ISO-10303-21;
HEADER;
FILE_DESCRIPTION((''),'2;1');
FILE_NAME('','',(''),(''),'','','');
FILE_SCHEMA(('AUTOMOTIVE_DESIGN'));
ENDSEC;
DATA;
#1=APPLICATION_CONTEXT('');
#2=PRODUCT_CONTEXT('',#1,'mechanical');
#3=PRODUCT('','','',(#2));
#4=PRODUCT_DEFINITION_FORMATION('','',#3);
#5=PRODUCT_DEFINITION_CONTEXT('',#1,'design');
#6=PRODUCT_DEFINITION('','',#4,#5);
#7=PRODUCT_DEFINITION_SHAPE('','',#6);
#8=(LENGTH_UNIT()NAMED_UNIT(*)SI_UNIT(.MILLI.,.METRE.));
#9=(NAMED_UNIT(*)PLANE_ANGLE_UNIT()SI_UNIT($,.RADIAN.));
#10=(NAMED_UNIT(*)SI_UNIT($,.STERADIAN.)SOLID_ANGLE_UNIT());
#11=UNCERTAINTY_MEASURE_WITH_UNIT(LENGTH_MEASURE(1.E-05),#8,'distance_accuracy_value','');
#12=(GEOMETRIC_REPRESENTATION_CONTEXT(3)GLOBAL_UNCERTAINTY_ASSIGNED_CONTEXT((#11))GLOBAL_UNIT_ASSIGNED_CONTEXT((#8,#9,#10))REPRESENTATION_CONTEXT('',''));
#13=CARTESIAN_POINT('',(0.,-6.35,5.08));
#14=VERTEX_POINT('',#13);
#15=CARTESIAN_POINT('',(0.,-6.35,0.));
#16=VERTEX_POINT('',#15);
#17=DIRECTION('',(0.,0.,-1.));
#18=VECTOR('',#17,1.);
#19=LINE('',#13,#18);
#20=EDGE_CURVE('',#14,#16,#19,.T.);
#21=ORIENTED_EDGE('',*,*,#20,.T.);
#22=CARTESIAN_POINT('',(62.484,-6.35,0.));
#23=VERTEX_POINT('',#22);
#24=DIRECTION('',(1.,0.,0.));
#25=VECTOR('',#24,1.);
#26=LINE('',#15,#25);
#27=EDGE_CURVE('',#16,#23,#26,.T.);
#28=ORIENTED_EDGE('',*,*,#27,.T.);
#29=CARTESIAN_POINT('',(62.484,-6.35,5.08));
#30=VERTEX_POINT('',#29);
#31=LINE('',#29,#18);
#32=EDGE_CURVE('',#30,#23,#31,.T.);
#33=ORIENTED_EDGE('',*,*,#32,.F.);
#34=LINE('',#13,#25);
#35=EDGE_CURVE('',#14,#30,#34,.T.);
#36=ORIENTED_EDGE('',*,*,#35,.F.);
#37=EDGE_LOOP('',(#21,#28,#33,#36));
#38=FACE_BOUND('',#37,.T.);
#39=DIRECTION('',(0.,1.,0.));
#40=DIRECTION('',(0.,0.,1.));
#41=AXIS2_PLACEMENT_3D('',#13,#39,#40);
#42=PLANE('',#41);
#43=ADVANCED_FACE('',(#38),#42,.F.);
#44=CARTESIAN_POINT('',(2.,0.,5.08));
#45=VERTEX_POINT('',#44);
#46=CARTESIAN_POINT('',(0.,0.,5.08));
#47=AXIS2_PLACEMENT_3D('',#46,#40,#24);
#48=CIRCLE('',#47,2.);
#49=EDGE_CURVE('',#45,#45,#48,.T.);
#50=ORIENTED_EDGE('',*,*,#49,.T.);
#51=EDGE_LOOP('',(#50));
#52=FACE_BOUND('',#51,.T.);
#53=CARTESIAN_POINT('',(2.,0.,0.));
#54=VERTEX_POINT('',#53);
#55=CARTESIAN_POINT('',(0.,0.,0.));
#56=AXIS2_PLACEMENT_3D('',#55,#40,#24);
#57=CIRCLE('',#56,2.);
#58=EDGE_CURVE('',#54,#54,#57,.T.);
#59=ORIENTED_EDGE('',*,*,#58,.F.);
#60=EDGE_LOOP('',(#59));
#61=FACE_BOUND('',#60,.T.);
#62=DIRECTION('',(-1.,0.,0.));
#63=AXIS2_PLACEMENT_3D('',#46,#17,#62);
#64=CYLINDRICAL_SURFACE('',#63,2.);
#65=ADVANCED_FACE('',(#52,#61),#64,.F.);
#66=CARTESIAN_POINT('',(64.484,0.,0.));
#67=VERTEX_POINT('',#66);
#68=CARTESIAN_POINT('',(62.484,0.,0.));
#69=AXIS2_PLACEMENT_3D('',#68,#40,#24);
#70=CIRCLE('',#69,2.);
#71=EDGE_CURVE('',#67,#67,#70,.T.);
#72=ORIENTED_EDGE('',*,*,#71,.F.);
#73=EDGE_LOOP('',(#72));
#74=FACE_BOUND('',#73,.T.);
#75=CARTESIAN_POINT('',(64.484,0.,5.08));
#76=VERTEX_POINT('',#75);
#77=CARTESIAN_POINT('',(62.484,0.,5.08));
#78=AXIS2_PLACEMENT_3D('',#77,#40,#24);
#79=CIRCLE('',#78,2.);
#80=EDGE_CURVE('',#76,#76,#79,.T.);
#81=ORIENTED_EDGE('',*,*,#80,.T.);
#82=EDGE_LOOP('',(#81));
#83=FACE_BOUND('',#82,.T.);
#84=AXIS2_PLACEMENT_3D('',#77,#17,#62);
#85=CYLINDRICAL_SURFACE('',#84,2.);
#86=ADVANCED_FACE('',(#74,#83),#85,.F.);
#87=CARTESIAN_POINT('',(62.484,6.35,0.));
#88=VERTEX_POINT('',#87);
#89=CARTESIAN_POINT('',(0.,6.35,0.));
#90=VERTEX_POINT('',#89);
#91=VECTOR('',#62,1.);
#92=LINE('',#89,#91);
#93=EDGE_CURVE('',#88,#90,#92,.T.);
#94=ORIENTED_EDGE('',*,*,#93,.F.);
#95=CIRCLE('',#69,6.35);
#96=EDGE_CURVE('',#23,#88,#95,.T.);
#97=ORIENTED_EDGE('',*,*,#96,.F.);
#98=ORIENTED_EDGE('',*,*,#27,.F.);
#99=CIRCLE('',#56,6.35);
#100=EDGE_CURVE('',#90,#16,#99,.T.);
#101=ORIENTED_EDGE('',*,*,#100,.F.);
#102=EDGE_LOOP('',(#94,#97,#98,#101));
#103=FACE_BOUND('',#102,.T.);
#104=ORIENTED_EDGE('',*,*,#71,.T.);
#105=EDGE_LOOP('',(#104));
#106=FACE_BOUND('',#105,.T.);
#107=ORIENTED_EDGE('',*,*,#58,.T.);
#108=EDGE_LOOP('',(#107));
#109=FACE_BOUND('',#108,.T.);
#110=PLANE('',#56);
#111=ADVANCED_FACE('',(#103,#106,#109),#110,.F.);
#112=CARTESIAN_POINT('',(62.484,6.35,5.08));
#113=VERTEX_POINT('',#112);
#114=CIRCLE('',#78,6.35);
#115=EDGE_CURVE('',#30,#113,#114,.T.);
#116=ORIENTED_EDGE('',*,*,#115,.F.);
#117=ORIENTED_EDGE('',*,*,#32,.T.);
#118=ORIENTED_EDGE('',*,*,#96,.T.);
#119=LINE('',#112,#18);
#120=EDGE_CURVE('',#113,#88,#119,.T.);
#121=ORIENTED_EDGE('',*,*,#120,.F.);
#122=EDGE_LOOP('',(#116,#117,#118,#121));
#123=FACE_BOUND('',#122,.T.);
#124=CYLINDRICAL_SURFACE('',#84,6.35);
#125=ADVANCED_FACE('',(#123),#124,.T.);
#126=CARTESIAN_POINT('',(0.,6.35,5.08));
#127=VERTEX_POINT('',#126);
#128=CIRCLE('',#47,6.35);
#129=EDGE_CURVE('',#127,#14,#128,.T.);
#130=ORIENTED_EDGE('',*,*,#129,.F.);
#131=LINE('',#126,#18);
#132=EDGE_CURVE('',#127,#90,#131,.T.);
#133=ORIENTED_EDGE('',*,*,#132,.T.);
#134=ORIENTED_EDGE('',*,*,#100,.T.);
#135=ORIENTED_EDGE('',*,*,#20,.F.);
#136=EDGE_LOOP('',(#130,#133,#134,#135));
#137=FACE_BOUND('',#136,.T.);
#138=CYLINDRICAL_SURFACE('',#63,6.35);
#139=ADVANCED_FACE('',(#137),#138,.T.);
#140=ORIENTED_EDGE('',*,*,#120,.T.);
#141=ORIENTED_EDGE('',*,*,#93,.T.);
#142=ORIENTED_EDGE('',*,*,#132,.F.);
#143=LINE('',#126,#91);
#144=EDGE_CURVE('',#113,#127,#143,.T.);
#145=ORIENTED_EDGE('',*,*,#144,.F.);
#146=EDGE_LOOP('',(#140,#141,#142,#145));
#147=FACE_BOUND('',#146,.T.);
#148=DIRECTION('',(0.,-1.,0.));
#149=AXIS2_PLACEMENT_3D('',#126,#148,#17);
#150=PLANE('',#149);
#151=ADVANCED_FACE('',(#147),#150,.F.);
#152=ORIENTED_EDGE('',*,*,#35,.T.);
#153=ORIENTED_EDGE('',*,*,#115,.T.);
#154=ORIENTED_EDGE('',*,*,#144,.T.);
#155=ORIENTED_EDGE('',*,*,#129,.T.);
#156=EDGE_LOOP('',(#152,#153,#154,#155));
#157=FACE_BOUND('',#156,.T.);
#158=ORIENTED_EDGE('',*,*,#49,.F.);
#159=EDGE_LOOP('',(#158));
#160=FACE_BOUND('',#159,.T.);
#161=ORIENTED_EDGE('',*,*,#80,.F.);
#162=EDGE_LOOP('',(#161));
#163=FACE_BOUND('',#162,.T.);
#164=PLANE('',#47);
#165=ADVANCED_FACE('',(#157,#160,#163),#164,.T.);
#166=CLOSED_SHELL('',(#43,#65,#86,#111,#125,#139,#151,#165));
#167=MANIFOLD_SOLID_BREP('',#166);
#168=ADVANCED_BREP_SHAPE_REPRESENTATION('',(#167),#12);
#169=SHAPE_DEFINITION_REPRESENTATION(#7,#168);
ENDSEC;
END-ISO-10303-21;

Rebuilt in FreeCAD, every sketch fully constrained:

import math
import FreeCAD as App
import Part
import Sketcher
Q = App.Units.Quantity

doc = App.newDocument("Part")
body = doc.addObject("PartDesign::Body", "Body")

# Sketch on XY plane
sketch1 = body.newObject("Sketcher::SketchObject", "Sketch")
sketch1.AttachmentSupport = (doc.getObject("XY_Plane"), [""])
sketch1.MapMode = "FlatFace"
sketch1.addGeometry([
    Part.LineSegment(App.Vector(62.5, 6.3, 0), App.Vector(0, 6.3, 0)),  # 0
    Part.ArcOfCircle(Part.Circle(App.Vector(0, 0, 0), App.Vector(0, 0, 1), 6.3), math.radians(90), math.radians(270)),  # 1
    Part.LineSegment(App.Vector(0, -6.3, 0), App.Vector(62.5, -6.3, 0)),  # 2
    Part.ArcOfCircle(Part.Circle(App.Vector(62.5, 0, 0), App.Vector(0, 0, 1), 6.3), math.radians(-90), math.radians(90)),  # 3
    Part.Circle(App.Vector(62.5, 0, 0), App.Vector(0, 0, 1), 2),  # 4
    Part.Circle(App.Vector(0, 0, 0), App.Vector(0, 0, 1), 2),  # 5
], False)
sketch1.addConstraint([
    Sketcher.Constraint("Tangent", 0, 2, 1, 1),
    Sketcher.Constraint("Tangent", 1, 2, 2, 1),
    Sketcher.Constraint("Tangent", 2, 2, 3, 1),
    Sketcher.Constraint("Tangent", 3, 2, 0, 1),
    Sketcher.Constraint("Horizontal", 0),
    Sketcher.Constraint("Horizontal", 2),
    Sketcher.Constraint("Coincident", 1, 3, -1, 1),
    Sketcher.Constraint("Coincident", 5, 3, -1, 1),
    Sketcher.Constraint("Coincident", 4, 3, 3, 3),
    Sketcher.Constraint("Equal", 4, 5),
    Sketcher.Constraint("Radius", 1, Q("0.25 in")),
    Sketcher.Constraint("DistanceX", 0, 2, 0, 1, Q("2.46 in")),
    Sketcher.Constraint("Diameter", 4, 4.0),
])
pad1 = body.newObject("PartDesign::Pad", "Pad")
pad1.Profile = sketch1
pad1.Length = Q("0.2 in")

doc.recompute()
